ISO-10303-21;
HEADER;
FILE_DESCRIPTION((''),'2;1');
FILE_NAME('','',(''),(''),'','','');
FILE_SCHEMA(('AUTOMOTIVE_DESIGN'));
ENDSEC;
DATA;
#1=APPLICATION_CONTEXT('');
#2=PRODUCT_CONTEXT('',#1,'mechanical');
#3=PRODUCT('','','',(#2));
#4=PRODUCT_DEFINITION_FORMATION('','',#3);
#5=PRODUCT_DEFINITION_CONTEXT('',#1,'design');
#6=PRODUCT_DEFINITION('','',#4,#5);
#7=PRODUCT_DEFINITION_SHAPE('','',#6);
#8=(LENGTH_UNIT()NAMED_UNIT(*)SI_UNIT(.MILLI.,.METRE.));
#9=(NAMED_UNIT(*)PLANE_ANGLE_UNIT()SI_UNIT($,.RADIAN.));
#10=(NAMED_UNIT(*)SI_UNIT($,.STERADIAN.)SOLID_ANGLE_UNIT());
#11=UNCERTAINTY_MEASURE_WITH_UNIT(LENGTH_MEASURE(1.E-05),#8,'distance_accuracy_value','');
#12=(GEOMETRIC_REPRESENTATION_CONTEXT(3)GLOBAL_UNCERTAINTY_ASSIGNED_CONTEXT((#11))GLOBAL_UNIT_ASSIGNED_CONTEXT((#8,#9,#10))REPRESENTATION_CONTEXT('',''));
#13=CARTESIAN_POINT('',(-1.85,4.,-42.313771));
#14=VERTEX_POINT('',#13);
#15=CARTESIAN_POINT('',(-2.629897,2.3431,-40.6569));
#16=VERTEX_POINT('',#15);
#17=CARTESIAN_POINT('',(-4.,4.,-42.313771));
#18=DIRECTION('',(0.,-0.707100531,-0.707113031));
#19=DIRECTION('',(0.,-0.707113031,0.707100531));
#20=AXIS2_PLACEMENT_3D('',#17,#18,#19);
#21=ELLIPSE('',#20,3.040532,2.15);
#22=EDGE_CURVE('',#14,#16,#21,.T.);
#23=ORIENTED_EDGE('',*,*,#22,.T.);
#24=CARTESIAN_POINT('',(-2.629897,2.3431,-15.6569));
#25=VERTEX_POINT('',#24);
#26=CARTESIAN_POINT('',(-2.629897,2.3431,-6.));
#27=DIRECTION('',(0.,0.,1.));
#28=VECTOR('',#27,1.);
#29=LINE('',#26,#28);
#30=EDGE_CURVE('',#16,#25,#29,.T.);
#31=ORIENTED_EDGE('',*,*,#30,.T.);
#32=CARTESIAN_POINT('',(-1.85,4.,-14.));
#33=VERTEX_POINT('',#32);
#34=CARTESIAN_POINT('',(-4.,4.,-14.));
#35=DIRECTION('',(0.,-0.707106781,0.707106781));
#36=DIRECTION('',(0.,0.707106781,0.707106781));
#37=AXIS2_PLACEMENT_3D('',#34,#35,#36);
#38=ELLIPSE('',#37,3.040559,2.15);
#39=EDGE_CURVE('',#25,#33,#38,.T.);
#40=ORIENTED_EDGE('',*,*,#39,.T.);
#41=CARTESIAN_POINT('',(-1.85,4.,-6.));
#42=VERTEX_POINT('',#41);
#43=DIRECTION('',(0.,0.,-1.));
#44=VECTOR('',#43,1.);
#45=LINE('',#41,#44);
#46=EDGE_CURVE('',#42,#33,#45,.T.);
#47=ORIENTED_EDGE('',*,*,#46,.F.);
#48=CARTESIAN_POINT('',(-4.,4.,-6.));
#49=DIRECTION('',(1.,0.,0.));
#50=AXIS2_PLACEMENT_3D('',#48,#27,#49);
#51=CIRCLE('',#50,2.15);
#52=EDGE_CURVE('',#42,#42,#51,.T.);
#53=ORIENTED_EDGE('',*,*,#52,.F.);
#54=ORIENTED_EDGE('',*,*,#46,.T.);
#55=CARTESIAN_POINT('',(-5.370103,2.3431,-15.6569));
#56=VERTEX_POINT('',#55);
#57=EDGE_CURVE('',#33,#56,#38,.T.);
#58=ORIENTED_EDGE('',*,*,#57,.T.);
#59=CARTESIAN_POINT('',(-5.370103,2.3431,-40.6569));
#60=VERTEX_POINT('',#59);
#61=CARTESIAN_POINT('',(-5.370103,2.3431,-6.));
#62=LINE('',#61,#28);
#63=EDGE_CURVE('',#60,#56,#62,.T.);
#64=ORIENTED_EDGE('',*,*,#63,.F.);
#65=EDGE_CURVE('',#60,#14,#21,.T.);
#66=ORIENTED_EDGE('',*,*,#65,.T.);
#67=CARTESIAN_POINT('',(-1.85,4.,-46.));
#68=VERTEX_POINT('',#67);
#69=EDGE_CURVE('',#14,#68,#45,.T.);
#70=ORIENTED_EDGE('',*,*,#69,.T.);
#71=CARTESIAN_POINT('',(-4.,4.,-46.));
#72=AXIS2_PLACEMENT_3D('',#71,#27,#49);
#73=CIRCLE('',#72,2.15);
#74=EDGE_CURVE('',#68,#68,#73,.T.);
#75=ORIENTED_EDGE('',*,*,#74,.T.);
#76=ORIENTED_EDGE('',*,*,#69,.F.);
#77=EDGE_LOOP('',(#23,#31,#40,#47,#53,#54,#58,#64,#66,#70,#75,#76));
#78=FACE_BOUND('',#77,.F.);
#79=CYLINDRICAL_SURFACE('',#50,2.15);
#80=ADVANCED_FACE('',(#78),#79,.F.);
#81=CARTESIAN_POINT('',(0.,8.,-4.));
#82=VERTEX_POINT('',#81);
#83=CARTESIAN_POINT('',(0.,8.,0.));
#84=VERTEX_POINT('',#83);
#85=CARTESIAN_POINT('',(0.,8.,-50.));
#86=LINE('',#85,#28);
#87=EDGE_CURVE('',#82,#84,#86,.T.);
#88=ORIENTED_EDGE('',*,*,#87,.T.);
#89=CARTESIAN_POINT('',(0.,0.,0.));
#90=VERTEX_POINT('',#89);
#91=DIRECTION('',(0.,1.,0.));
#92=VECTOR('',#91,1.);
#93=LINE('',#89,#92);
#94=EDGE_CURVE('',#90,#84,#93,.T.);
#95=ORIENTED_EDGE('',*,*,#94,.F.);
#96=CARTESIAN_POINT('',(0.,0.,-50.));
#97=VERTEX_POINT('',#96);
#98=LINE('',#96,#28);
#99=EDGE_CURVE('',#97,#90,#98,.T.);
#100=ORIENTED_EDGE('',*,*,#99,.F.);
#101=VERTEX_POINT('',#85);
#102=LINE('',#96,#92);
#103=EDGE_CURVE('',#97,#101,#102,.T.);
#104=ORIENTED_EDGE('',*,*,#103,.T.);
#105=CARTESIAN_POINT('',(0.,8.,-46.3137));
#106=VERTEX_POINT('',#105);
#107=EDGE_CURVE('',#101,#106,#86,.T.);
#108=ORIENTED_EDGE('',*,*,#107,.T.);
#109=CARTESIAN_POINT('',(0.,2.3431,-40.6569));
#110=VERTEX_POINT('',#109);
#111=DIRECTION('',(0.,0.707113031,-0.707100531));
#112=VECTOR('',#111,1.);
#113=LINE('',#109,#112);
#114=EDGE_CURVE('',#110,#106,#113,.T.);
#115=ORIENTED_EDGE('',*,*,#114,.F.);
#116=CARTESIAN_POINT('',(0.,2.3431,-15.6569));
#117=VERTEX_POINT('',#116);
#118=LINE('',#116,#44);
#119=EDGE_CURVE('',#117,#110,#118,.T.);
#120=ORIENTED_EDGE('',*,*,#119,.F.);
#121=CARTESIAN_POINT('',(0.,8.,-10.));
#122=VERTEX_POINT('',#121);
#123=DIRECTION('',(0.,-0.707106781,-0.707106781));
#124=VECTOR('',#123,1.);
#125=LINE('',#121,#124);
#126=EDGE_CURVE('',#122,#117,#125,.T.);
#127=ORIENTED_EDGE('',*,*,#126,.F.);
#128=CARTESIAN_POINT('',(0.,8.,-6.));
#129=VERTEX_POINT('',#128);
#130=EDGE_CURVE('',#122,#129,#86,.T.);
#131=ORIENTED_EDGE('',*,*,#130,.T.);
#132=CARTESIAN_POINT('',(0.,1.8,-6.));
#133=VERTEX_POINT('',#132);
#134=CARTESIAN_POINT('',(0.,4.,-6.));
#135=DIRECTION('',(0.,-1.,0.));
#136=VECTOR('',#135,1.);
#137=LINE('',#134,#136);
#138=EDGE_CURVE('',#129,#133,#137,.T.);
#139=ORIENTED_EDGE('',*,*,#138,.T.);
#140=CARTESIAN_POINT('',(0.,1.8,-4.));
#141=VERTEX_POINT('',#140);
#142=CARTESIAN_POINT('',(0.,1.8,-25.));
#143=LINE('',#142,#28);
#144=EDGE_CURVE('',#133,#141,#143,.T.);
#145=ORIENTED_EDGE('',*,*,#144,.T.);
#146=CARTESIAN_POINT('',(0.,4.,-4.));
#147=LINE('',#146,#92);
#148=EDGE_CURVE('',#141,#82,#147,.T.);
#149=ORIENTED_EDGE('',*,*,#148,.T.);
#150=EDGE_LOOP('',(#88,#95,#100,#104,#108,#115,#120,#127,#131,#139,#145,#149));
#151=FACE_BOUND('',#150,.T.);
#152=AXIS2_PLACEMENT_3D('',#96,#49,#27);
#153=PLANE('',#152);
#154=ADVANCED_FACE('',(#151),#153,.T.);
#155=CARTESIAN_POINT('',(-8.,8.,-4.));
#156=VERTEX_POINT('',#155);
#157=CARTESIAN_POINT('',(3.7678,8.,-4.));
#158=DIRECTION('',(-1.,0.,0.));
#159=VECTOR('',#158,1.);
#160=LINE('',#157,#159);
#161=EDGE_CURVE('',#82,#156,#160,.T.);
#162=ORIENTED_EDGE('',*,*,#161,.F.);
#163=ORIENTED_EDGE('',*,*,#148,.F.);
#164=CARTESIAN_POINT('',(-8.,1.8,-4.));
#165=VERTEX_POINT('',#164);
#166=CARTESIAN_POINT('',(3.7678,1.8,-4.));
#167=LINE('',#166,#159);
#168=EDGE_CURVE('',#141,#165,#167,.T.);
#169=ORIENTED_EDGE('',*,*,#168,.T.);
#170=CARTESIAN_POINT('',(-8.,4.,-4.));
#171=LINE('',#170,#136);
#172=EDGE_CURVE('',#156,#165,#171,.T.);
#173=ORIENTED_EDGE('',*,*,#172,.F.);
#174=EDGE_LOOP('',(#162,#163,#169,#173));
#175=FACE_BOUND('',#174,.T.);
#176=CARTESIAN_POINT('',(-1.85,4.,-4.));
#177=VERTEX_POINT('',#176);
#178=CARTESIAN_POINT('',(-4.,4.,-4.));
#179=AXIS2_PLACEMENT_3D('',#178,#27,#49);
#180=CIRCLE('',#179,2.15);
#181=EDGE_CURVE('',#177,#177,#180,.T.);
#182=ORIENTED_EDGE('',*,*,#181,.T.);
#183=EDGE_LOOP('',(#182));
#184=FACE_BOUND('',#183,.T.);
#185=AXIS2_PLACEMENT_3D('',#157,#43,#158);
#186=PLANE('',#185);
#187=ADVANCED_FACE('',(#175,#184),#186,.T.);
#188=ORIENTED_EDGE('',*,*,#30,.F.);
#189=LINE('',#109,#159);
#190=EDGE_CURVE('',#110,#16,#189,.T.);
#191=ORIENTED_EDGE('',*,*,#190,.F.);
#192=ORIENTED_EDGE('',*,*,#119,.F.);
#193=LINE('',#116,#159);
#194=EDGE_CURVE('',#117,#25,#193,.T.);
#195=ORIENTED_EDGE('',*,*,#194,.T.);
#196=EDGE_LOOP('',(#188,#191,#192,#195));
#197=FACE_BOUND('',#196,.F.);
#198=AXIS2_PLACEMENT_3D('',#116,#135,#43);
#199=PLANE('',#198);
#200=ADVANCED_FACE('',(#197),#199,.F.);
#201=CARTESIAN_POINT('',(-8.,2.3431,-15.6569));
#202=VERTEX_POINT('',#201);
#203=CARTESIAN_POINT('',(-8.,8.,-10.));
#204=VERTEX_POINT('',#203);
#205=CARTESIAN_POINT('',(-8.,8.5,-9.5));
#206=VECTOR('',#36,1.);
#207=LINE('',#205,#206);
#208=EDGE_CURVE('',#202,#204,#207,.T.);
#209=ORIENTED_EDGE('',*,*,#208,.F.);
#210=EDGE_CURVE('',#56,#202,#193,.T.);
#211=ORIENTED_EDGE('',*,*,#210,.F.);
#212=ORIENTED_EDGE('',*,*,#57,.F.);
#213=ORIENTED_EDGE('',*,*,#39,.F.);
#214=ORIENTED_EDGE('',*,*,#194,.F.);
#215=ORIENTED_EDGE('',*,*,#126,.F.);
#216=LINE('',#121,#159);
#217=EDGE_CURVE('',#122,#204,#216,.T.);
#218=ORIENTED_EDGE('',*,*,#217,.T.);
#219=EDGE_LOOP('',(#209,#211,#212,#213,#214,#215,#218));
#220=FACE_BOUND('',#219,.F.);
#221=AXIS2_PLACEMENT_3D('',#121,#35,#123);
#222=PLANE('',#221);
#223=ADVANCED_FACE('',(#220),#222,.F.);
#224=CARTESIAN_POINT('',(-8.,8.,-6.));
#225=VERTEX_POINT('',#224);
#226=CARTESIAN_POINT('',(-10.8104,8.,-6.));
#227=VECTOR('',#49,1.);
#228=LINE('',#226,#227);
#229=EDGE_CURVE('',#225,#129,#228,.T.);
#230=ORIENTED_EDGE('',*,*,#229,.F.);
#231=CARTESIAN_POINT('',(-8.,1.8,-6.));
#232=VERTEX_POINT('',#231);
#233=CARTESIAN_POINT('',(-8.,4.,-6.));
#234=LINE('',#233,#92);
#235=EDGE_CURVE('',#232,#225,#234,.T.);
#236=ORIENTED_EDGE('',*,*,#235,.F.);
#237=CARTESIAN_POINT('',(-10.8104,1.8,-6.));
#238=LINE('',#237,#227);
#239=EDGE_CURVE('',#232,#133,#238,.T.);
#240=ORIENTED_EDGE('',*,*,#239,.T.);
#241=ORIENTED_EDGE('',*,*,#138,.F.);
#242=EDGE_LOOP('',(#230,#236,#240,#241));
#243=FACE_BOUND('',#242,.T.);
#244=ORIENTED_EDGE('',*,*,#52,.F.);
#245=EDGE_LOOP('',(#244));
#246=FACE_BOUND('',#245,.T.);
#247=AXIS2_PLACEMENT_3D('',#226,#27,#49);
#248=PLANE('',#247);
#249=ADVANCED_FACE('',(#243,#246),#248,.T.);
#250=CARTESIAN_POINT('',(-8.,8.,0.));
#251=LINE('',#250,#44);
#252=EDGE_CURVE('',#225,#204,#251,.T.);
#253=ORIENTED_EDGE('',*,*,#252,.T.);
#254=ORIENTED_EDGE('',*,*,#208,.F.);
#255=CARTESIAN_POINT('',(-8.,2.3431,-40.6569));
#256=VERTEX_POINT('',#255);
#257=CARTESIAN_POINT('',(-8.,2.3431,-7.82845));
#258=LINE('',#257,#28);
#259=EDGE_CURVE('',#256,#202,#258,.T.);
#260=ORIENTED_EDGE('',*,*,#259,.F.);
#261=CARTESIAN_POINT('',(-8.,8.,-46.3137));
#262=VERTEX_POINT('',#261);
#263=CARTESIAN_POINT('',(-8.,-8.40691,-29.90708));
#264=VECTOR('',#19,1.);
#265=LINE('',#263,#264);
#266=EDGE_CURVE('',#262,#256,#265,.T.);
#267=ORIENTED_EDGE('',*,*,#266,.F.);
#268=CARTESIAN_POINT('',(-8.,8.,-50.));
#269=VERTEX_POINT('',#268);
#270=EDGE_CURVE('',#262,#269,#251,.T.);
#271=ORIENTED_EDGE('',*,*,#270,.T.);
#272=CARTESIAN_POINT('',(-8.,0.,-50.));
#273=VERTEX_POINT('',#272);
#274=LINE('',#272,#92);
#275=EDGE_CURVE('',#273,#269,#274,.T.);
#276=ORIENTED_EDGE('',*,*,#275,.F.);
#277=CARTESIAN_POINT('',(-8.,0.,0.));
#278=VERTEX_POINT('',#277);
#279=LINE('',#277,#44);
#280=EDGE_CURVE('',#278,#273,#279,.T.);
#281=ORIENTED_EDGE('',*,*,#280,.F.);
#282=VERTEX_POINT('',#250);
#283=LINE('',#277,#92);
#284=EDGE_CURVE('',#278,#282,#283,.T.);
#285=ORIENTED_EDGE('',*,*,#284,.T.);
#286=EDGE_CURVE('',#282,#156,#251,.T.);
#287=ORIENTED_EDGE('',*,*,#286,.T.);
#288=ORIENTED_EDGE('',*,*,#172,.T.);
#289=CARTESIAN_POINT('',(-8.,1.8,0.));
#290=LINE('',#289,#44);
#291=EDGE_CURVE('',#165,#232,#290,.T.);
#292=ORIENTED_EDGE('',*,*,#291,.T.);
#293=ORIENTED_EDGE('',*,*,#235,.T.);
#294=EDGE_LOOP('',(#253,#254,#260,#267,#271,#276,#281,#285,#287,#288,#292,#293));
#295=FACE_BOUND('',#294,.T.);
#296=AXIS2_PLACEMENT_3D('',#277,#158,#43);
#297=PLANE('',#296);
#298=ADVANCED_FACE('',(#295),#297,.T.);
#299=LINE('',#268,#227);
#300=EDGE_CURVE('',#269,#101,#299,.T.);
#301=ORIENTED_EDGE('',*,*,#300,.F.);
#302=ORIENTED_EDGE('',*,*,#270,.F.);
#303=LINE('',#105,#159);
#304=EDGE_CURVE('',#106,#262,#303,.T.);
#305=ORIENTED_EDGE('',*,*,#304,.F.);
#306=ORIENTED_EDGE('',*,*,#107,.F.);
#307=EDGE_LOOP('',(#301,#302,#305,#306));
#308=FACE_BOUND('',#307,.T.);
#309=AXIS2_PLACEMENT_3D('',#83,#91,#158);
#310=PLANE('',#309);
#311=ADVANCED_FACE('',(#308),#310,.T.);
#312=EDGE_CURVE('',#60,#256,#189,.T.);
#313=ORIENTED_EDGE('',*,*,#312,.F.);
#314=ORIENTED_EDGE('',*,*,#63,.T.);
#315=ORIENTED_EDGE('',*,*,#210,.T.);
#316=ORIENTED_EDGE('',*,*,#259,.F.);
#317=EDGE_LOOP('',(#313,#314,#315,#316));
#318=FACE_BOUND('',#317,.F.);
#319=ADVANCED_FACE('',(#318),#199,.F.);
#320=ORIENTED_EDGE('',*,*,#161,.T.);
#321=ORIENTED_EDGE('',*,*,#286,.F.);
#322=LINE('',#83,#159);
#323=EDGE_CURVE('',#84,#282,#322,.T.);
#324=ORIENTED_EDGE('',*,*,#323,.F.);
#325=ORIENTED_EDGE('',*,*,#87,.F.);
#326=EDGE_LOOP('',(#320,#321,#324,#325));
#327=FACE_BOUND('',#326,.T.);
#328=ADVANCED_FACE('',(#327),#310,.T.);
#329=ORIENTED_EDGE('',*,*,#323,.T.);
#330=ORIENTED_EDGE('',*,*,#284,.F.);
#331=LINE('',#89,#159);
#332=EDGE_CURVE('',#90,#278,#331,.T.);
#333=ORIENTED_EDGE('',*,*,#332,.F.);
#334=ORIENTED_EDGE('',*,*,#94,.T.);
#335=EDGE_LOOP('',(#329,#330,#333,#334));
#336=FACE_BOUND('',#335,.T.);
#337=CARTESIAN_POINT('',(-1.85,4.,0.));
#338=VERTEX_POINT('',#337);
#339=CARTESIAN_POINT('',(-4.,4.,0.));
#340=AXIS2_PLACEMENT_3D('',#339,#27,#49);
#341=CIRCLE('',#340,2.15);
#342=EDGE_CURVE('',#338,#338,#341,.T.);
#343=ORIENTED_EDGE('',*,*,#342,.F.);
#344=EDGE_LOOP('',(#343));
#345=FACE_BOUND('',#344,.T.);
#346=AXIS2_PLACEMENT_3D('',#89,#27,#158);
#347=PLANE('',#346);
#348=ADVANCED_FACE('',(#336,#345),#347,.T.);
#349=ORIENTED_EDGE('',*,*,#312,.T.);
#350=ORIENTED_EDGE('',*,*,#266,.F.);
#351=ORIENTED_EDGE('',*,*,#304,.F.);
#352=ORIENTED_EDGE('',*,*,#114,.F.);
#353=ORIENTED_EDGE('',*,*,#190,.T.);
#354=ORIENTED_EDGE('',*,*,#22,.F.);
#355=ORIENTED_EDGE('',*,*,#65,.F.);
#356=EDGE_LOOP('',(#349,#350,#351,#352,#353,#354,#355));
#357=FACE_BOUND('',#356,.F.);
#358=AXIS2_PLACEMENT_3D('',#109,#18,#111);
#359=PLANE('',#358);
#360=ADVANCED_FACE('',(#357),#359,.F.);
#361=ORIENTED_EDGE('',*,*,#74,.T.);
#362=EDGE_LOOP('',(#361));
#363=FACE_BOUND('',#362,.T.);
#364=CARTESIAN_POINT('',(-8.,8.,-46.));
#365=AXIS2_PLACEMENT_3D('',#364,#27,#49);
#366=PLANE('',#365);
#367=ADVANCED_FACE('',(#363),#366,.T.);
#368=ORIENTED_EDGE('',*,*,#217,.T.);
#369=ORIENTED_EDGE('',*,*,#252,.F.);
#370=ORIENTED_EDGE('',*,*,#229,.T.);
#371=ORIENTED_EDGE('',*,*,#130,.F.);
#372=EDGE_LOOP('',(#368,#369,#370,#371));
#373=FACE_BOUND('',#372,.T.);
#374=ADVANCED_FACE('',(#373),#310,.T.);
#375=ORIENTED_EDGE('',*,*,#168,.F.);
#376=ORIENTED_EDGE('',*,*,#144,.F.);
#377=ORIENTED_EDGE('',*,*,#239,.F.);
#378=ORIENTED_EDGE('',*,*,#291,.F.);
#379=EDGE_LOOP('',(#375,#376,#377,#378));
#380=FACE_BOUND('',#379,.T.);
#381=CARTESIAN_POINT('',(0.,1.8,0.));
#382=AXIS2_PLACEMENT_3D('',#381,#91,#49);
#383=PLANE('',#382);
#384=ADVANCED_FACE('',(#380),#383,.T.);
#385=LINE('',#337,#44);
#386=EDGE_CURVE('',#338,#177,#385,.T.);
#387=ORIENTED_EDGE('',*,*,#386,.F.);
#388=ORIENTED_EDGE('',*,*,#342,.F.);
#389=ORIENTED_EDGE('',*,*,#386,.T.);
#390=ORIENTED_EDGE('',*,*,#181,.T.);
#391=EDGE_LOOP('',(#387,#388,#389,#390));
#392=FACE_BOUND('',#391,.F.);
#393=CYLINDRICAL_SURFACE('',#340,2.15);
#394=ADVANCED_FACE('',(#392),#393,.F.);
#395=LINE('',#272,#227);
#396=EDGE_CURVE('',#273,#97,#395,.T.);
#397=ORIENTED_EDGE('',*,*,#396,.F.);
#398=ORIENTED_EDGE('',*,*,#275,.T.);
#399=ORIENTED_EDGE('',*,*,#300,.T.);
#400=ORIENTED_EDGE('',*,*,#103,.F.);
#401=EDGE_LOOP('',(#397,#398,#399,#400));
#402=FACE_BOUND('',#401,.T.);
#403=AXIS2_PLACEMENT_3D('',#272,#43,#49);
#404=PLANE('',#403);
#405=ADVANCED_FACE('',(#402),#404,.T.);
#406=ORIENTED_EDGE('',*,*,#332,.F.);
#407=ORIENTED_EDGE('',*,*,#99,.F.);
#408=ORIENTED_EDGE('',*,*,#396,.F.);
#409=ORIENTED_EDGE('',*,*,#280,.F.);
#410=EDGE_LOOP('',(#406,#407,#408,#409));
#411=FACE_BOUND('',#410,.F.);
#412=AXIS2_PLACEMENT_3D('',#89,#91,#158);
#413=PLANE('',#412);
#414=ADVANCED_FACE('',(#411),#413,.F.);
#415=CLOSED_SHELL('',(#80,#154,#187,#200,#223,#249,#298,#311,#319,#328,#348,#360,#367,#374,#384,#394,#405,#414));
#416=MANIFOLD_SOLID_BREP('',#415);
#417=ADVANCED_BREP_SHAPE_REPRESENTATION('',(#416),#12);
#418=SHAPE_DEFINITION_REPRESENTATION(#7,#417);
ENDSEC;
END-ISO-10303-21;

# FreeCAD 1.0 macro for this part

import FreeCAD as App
import Part
import Sketcher

V = App.Vector
Q = App.Units.Quantity


def add_polygon(sketch, points):
    """Adds a closed chain of lines whose ends are joined by coincident constraints."""
    first, n = sketch.GeometryCount, len(points)
    for a, b in zip(points, points[1:] + points[:1]):
        sketch.addGeometry(Part.LineSegment(App.Vector(*a, 0), App.Vector(*b, 0)), False)
    for i in range(n):
        sketch.addConstraint(Sketcher.Constraint("Coincident", first + i, 2, first + (i + 1) % n, 1))

doc = App.newDocument("Part")
body = doc.addObject("PartDesign::Body", "Body")

sketch1 = body.newObject("Sketcher::SketchObject", "Sketch")
sketch1.AttachmentSupport = (doc.getObject("XZ_Plane"), [""])
sketch1.MapMode = "FlatFace"
add_polygon(sketch1, [(-8, 0), (0, 0), (0, -50), (-8, -50)])
sketch1.addConstraint([
    Sketcher.Constraint("Horizontal", 0),
    Sketcher.Constraint("Vertical", 1),
    Sketcher.Constraint("Horizontal", 2),
    Sketcher.Constraint("Vertical", 3),
    Sketcher.Constraint("Coincident", 0, 2, -1, 1),
    Sketcher.Constraint("DistanceX", 0, 1, 0, 2, Q("8 mm")),
    Sketcher.Constraint("DistanceY", 1, 2, 1, 1, Q("50 mm")),
])
pad1 = body.newObject("PartDesign::Pad", "Pad")
pad1.Profile = sketch1
pad1.Length = 8
pad1.Reversed = True

sketch2 = body.newObject("Sketcher::SketchObject", "Sketch001")
sketch2.AttachmentSupport = (doc.getObject("XY_Plane"), [""])
sketch2.MapMode = "FlatFace"
sketch2.addGeometry(Part.Circle(V(-4, 4, 0), V(0, 0, 1), 2.1), False)
sketch2.addConstraint([
    Sketcher.Constraint("Diameter", 0, Q("4.3 mm")),
    Sketcher.Constraint("DistanceX", 0, 3, -1, 1, Q("4 mm")),
    Sketcher.Constraint("DistanceY", -1, 1, 0, 3, Q("4 mm")),
])
pocket1 = body.newObject("PartDesign::Pocket", "Pocket")
pocket1.Profile = sketch2
pocket1.Length = 4

sketch3 = body.newObject("Sketcher::SketchObject", "Sketch002")
sketch3.AttachmentSupport = (doc.getObject("XZ_Plane"), [""])
sketch3.MapMode = "FlatFace"
sketch3.AttachmentOffset = App.Placement(V(0, 0, -8), App.Rotation())
add_polygon(sketch3, [(3.8, -6), (-10.8, -6), (-10.8, -4), (3.8, -4)])
sketch3.addConstraint([
    Sketcher.Constraint("Horizontal", 0),
    Sketcher.Constraint("Vertical", 1),
    Sketcher.Constraint("Horizontal", 2),
    Sketcher.Constraint("Vertical", 3),
    Sketcher.Constraint("DistanceY", 1, 1, 1, 2, Q("2 mm")),
    Sketcher.Constraint("DistanceY", 1, 2, -1, 1, Q("4 mm")),
    Sketcher.Constraint("DistanceX", 0, 2, 0, 1, Q("14.5782 mm")),
    Sketcher.Constraint("DistanceX", 0, 2, -1, 1, Q("10.8104 mm")),
])
pocket2 = body.newObject("PartDesign::Pocket", "Pocket001")
pocket2.Profile = sketch3
pocket2.Length = 6.2
pocket2.Reversed = True

sketch4 = body.newObject("Sketcher::SketchObject", "Sketch003")
sketch4.AttachmentSupport = (doc.getObject("XY_Plane"), [""])
sketch4.MapMode = "FlatFace"
sketch4.AttachmentOffset = App.Placement(V(0, 0, -6), App.Rotation())
sketch4.addGeometry(Part.Circle(V(-4, 4, 0), V(0, 0, 1), 2.1), False)
sketch4.addConstraint([
    Sketcher.Constraint("Diameter", 0, Q("4.3 mm")),
    Sketcher.Constraint("DistanceX", 0, 3, -1, 1, Q("4 mm")),
    Sketcher.Constraint("DistanceY", -1, 1, 0, 3, Q("4 mm")),
])
pocket3 = body.newObject("PartDesign::Pocket", "Pocket002")
pocket3.Profile = sketch4
pocket3.Length = 40

sketch5 = body.newObject("Sketcher::SketchObject", "Sketch004")
sketch5.AttachmentSupport = (doc.getObject("YZ_Plane"), [""])
sketch5.MapMode = "FlatFace"
add_polygon(sketch5, [(8, -46), (8, -10), (2, -16), (2, -41)])
sketch5.addConstraint([
    Sketcher.Constraint("Vertical", 0),
    Sketcher.Constraint("Vertical", 2),
    Sketcher.Constraint("Perpendicular", 1, 3),
    Sketcher.Constraint("Equal", 1, 3),
    Sketcher.Constraint("DistanceY", 2, 2, 2, 1, Q("25 mm")),
    Sketcher.Constraint("Distance", 1, Q("8 mm")),
    Sketcher.Constraint("DistanceX", -1, 1, 0, 2, Q("8 mm")),
    Sketcher.Constraint("DistanceY", 0, 2, -1, 1, Q("10 mm")),
])
pocket4 = body.newObject("PartDesign::Pocket", "Pocket003")
pocket4.Profile = sketch5
pocket4.Length = 40

doc.recompute()
